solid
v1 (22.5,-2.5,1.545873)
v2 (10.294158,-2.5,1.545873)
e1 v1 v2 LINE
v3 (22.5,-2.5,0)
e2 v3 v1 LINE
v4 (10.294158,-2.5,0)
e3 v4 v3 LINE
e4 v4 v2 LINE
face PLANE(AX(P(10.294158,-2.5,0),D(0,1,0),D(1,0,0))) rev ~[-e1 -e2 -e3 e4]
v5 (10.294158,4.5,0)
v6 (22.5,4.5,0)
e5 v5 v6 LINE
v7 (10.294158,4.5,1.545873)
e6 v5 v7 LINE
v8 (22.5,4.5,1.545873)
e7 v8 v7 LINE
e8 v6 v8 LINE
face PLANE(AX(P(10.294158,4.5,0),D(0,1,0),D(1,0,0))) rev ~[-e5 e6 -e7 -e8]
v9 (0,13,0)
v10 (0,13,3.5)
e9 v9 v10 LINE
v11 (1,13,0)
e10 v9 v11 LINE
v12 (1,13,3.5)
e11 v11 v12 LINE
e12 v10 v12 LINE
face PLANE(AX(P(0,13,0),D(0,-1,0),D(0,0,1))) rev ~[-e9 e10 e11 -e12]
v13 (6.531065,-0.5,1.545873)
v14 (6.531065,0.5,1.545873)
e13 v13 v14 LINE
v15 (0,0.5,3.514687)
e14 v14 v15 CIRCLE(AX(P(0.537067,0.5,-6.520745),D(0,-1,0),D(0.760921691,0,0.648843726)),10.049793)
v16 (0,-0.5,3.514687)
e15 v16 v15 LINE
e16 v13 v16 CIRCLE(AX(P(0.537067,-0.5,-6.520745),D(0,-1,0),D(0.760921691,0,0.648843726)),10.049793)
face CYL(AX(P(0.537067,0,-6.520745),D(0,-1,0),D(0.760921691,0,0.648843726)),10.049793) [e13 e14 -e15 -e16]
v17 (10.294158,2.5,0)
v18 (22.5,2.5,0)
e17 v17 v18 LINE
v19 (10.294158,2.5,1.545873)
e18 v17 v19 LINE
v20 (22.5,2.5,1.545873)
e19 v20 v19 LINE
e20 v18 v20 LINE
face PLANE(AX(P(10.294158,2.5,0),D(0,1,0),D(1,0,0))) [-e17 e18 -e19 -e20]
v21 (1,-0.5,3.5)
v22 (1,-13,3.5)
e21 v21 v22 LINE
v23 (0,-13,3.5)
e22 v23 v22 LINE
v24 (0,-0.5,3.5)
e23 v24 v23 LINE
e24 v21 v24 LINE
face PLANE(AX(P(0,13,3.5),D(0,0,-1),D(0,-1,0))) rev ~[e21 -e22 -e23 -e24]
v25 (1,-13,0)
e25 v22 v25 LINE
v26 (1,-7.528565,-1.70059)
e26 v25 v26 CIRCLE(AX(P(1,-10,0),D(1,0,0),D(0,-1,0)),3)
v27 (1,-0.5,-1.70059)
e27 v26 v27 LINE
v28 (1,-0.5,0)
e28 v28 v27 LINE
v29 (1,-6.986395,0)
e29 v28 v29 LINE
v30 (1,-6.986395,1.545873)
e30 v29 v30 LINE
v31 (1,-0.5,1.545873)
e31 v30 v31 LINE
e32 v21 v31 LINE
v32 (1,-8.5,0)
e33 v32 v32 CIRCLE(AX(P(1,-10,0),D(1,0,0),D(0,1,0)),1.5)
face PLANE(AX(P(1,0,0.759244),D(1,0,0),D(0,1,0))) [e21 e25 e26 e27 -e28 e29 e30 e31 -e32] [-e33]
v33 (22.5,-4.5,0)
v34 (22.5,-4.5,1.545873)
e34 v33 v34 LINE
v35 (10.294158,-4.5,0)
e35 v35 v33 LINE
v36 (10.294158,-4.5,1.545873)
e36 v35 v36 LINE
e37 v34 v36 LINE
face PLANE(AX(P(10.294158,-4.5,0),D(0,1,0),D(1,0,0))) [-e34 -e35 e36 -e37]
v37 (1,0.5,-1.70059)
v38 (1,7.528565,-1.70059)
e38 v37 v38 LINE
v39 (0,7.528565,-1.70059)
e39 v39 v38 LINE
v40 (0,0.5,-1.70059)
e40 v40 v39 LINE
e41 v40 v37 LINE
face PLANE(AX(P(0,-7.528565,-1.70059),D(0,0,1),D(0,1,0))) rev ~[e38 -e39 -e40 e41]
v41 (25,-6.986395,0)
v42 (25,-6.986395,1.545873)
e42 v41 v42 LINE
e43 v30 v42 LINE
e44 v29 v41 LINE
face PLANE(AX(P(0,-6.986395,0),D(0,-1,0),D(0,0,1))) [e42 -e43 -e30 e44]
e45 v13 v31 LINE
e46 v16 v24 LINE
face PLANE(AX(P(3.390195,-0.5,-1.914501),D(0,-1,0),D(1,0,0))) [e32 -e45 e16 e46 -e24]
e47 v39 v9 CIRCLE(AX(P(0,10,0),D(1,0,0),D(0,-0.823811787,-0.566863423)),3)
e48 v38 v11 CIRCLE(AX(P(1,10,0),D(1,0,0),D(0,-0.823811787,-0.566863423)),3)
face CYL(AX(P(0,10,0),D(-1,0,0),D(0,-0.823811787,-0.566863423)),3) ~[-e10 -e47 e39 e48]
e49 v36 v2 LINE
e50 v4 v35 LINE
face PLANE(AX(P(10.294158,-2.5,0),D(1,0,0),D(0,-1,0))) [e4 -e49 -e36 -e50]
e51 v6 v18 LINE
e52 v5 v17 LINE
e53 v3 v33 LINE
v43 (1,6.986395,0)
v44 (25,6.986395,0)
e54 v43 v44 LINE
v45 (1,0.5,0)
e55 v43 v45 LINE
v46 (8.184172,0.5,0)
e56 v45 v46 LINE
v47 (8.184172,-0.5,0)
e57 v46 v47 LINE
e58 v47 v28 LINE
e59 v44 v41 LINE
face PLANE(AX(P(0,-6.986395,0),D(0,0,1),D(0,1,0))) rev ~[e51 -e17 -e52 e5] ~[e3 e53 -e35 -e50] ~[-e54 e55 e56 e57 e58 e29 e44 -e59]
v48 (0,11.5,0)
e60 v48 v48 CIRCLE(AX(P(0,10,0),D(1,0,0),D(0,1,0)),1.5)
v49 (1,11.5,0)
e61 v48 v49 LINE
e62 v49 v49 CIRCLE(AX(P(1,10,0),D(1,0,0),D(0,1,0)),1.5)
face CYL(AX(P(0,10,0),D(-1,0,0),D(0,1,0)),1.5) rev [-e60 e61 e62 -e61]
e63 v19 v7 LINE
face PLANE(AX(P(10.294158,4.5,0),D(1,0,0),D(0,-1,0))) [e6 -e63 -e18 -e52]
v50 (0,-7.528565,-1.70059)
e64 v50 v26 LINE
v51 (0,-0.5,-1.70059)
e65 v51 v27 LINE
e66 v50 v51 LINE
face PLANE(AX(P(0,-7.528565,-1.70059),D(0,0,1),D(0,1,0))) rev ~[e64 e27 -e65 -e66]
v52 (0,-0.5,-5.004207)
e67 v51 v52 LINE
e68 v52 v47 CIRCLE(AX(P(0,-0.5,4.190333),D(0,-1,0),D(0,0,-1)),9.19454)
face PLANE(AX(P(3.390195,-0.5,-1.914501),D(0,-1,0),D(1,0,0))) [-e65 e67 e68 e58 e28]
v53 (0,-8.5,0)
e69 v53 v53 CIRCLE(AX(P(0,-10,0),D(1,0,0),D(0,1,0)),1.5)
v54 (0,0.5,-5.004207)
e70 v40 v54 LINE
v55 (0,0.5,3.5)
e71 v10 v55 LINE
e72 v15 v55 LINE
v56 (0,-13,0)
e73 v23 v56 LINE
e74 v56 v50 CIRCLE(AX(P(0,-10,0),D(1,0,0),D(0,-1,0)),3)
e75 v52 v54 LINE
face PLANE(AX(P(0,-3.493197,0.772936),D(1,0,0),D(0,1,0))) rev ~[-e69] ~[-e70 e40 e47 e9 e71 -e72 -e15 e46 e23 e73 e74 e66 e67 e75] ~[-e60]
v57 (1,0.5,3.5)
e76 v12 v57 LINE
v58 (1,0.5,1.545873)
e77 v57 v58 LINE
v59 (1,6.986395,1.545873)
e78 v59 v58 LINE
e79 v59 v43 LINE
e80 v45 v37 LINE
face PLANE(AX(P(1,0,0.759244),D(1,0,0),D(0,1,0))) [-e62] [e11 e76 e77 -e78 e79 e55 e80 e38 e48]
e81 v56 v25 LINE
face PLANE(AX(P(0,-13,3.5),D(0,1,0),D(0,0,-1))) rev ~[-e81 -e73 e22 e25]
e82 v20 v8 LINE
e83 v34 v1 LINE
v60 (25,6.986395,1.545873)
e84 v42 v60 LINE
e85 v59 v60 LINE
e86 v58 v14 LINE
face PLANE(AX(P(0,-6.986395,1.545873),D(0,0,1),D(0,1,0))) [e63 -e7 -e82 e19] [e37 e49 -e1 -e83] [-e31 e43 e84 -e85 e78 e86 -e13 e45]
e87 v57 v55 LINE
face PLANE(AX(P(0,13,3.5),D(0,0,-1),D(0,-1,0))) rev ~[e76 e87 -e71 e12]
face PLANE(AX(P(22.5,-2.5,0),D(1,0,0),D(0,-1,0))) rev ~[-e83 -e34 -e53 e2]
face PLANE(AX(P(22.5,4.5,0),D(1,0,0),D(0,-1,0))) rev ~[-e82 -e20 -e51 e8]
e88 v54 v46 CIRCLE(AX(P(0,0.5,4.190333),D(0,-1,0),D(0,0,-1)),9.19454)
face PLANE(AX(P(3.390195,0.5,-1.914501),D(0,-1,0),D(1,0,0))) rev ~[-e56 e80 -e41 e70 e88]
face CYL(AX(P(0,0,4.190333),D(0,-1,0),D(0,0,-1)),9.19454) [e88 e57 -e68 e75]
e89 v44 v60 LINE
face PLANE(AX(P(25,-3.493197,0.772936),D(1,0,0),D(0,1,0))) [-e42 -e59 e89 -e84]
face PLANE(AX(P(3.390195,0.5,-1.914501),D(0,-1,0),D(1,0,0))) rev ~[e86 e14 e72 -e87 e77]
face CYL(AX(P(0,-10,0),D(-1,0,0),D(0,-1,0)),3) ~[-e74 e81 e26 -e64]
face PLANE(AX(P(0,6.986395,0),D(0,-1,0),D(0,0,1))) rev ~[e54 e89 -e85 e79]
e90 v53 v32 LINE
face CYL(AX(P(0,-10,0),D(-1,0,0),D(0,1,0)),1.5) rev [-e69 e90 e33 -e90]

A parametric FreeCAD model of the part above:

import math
import FreeCAD as App
import Part
import Sketcher
from FreeCAD import Vector
Q = App.Units.Quantity

doc = App.newDocument("Part")
body = doc.addObject("PartDesign::Body", "Body")

sketch1 = doc.addObject("Sketcher::SketchObject", "Sketch")
body.addObject(sketch1)
sketch1.AttachmentSupport = (doc.YZ_Plane, [""])
sketch1.MapMode = "FlatFace"
sketch1.addGeometry(Part.LineSegment(Vector(-7.5, -1.7, 0), Vector(7.5, -1.7, 0)), False)
sketch1.addGeometry(Part.ArcOfCircle(Part.Circle(Vector(10, 0, 0), Vector(0, 0, 1), 3), math.radians(-145), math.radians(0)), False)
sketch1.addGeometry(Part.LineSegment(Vector(13, 0, 0), Vector(13, 3.5, 0)), False)
sketch1.addGeometry(Part.LineSegment(Vector(13, 3.5, 0), Vector(-13, 3.5, 0)), False)
sketch1.addGeometry(Part.LineSegment(Vector(-13, 3.5, 0), Vector(-13, 0, 0)), False)
sketch1.addGeometry(Part.ArcOfCircle(Part.Circle(Vector(-10, 0, 0), Vector(0, 0, 1), 3), math.radians(180), math.radians(325)), False)
sketch1.addGeometry(Part.Circle(Vector(-10, 0, 0), Vector(0, 0, 1), 1.5), False)
sketch1.addGeometry(Part.Circle(Vector(10, 0, 0), Vector(0, 0, 1), 1.5), False)
sketch1.addGeometry(Part.LineSegment(Vector(0, 0, 0), Vector(-7, 0, 0)), False)
sketch1.addGeometry(Part.LineSegment(Vector(-7, 0, 0), Vector(-7, 1.5, 0)), False)
sketch1.addGeometry(Part.LineSegment(Vector(-7, 1.5, 0), Vector(0, 1.5, 0)), False)
sketch1.addGeometry(Part.LineSegment(Vector(0, 1.5, 0), Vector(0, 0, 0)), False)
sketch1.addConstraint(Sketcher.Constraint("Coincident", 0, 2, 1, 1))
sketch1.addConstraint(Sketcher.Constraint("Tangent", 1, 2, 2, 1))
sketch1.addConstraint(Sketcher.Constraint("Coincident", 2, 2, 3, 1))
sketch1.addConstraint(Sketcher.Constraint("Coincident", 3, 2, 4, 1))
sketch1.addConstraint(Sketcher.Constraint("Tangent", 4, 2, 5, 1))
sketch1.addConstraint(Sketcher.Constraint("Coincident", 5, 2, 0, 1))
sketch1.addConstraint(Sketcher.Constraint("Coincident", 8, 2, 9, 1))
sketch1.addConstraint(Sketcher.Constraint("Coincident", 9, 2, 10, 1))
sketch1.addConstraint(Sketcher.Constraint("Coincident", 10, 2, 11, 1))
sketch1.addConstraint(Sketcher.Constraint("Coincident", 11, 2, 8, 1))
sketch1.addConstraint(Sketcher.Constraint("Horizontal", 0))
sketch1.addConstraint(Sketcher.Constraint("Vertical", 2))
sketch1.addConstraint(Sketcher.Constraint("Horizontal", 3))
sketch1.addConstraint(Sketcher.Constraint("Vertical", 4))
sketch1.addConstraint(Sketcher.Constraint("Horizontal", 8))
sketch1.addConstraint(Sketcher.Constraint("Vertical", 9))
sketch1.addConstraint(Sketcher.Constraint("Horizontal", 10))
sketch1.addConstraint(Sketcher.Constraint("Vertical", 11))
sketch1.addConstraint(Sketcher.Constraint("Coincident", 11, 2, -1, 1))
sketch1.addConstraint(Sketcher.Constraint("Coincident", 6, 3, 5, 3))
sketch1.addConstraint(Sketcher.Constraint("Coincident", 7, 3, 1, 3))
sketch1.addConstraint(Sketcher.Constraint("Equal", 1, 5))
sketch1.addConstraint(Sketcher.Constraint("Equal", 6, 7))
sketch1.addConstraint(Sketcher.Constraint("Symmetric", 1, 3, 5, 3, -1, 1))
sketch1.addConstraint(Sketcher.Constraint("PointOnObject", 1, 3, -1))
sketch1.addConstraint(Sketcher.Constraint("Diameter", 6, Q("3 mm")))
sketch1.addConstraint(Sketcher.Constraint("Radius", 1, Q("3 mm")))
sketch1.addConstraint(Sketcher.Constraint("DistanceX", 3, 2, 3, 1, Q("26 mm")))
sketch1.addConstraint(Sketcher.Constraint("DistanceY", 2, 1, 2, 2, Q("3.5 mm")))
sketch1.addConstraint(Sketcher.Constraint("DistanceX", 0, 1, 0, 2, Q("15.057129 mm")))
sketch1.addConstraint(Sketcher.Constraint("DistanceX", 8, 2, 8, 1, Q("6.986395 mm")))
sketch1.addConstraint(Sketcher.Constraint("DistanceY", 9, 1, 9, 2, Q("1.545873 mm")))
pad1 = doc.addObject("PartDesign::Pad", "Pad")
body.addObject(pad1)
pad1.Profile = sketch1
pad1.Length = 1

sketch2 = doc.addObject("Sketcher::SketchObject", "Sketch001")
body.addObject(sketch2)
sketch2.AttachmentSupport = (doc.YZ_Plane, [""])
sketch2.MapMode = "FlatFace"
sketch2.addGeometry(Part.LineSegment(Vector(0, 1.5, 0), Vector(0, 0, 0)), False)
sketch2.addGeometry(Part.LineSegment(Vector(0, 0, 0), Vector(7, 0, 0)), False)
sketch2.addGeometry(Part.LineSegment(Vector(7, 0, 0), Vector(7, 1.5, 0)), False)
sketch2.addGeometry(Part.LineSegment(Vector(7, 1.5, 0), Vector(0, 1.5, 0)), False)
sketch2.addConstraint(Sketcher.Constraint("Coincident", 0, 2, 1, 1))
sketch2.addConstraint(Sketcher.Constraint("Coincident", 1, 2, 2, 1))
sketch2.addConstraint(Sketcher.Constraint("Coincident", 2, 2, 3, 1))
sketch2.addConstraint(Sketcher.Constraint("Coincident", 3, 2, 0, 1))
sketch2.addConstraint(Sketcher.Constraint("Vertical", 0))
sketch2.addConstraint(Sketcher.Constraint("Horizontal", 1))
sketch2.addConstraint(Sketcher.Constraint("Vertical", 2))
sketch2.addConstraint(Sketcher.Constraint("Horizontal", 3))
sketch2.addConstraint(Sketcher.Constraint("Coincident", 0, 2, -1, 1))
sketch2.addConstraint(Sketcher.Constraint("DistanceX", 1, 1, 1, 2, Q("6.986395 mm")))
sketch2.addConstraint(Sketcher.Constraint("DistanceY", 0, 2, 0, 1, Q("1.545873 mm")))
pad2 = doc.addObject("PartDesign::Pad", "Pad001")
body.addObject(pad2)
pad2.Profile = sketch2
pad2.Length = 25

sketch3 = doc.addObject("Sketcher::SketchObject", "Sketch002")
body.addObject(sketch3)
sketch3.AttachmentSupport = (doc.XY_Plane, [""])
sketch3.MapMode = "FlatFace"
sketch3.addGeometry(Part.LineSegment(Vector(10.3, 2.5, 0), Vector(10.3, 4.5, 0)), False)
sketch3.addGeometry(Part.LineSegment(Vector(10.3, 4.5, 0), Vector(22.5, 4.5, 0)), False)
sketch3.addGeometry(Part.LineSegment(Vector(22.5, 4.5, 0), Vector(22.5, 2.5, 0)), False)
sketch3.addGeometry(Part.LineSegment(Vector(22.5, 2.5, 0), Vector(10.3, 2.5, 0)), False)
sketch3.addConstraint(Sketcher.Constraint("Coincident", 0, 2, 1, 1))
sketch3.addConstraint(Sketcher.Constraint("Coincident", 1, 2, 2, 1))
sketch3.addConstraint(Sketcher.Constraint("Coincident", 2, 2, 3, 1))
sketch3.addConstraint(Sketcher.Constraint("Coincident", 3, 2, 0, 1))
sketch3.addConstraint(Sketcher.Constraint("Vertical", 0))
sketch3.addConstraint(Sketcher.Constraint("Horizontal", 1))
sketch3.addConstraint(Sketcher.Constraint("Vertical", 2))
sketch3.addConstraint(Sketcher.Constraint("Horizontal", 3))
sketch3.addConstraint(Sketcher.Constraint("DistanceY", 0, 1, 0, 2, Q("2 mm")))
sketch3.addConstraint(Sketcher.Constraint("DistanceY", -1, 1, 0, 2, Q("4.5 mm")))
sketch3.addConstraint(Sketcher.Constraint("DistanceX", -1, 1, 1, 2, Q("22.5 mm")))
sketch3.addConstraint(Sketcher.Constraint("DistanceX", 1, 1, 1, 2, Q("12.205842 mm")))
pocket1 = doc.addObject("PartDesign::Pocket", "Pocket")
body.addObject(pocket1)
pocket1.Profile = sketch3
pocket1.Length = 25
pocket1.Reversed = True

sketch4 = doc.addObject("Sketcher::SketchObject", "Sketch003")
body.addObject(sketch4)
sketch4.AttachmentSupport = (doc.XZ_Plane, [""])
sketch4.MapMode = "FlatFace"
sketch4.addGeometry(Part.ArcOfCircle(Part.Circle(Vector(0, 4, 0), Vector(0, 0, 1), 9), math.radians(-90), math.radians(-27)), False)
sketch4.addGeometry(Part.ArcOfCircle(Part.Circle(Vector(1, -7, 0), Vector(0, 0, 1), 10), math.radians(40), math.radians(93)), False)
sketch4.addGeometry(Part.LineSegment(Vector(0, 4, 0), Vector(0, -5, 0)), False)
sketch4.addConstraint(Sketcher.Constraint("Coincident", 0, 2, 1, 1))
sketch4.addConstraint(Sketcher.Constraint("Coincident", 1, 2, 2, 1))
sketch4.addConstraint(Sketcher.Constraint("Coincident", 2, 2, 0, 1))
sketch4.addConstraint(Sketcher.Constraint("Vertical", 2))
sketch4.addConstraint(Sketcher.Constraint("PointOnObject", 0, 3, -2))
sketch4.addConstraint(Sketcher.Constraint("PointOnObject", 0, 2, -1))
sketch4.addConstraint(Sketcher.Constraint("PointOnObject", 1, 2, -2))
sketch4.addConstraint(Sketcher.Constraint("Radius", 0, Q("9.19454 mm")))
sketch4.addConstraint(Sketcher.Constraint("Radius", 1, Q("10.049793 mm")))
sketch4.addConstraint(Sketcher.Constraint("DistanceY", 2, 2, 2, 1, Q("8.518894 mm")))
sketch4.addConstraint(Sketcher.Constraint("DistanceY", 1, 3, 1, 2, Q("10.035432 mm")))
pad3 = doc.addObject("PartDesign::Pad", "Pad002")
body.addObject(pad3)
pad3.Profile = sketch4
pad3.Length = 1
pad3.Midplane = True

sketch5 = doc.addObject("Sketcher::SketchObject", "Sketch004")
body.addObject(sketch5)
sketch5.AttachmentSupport = (doc.YZ_Plane, [""])
sketch5.MapMode = "FlatFace"
sketch5.addGeometry(Part.LineSegment(Vector(-7, 1.5, 0), Vector(-7, 0, 0)), False)
sketch5.addGeometry(Part.LineSegment(Vector(-7, 0, 0), Vector(0, 0, 0)), False)
sketch5.addGeometry(Part.LineSegment(Vector(0, 0, 0), Vector(0, 1.5, 0)), False)
sketch5.addGeometry(Part.LineSegment(Vector(0, 1.5, 0), Vector(-7, 1.5, 0)), False)
sketch5.addConstraint(Sketcher.Constraint("Coincident", 0, 2, 1, 1))
sketch5.addConstraint(Sketcher.Constraint("Coincident", 1, 2, 2, 1))
sketch5.addConstraint(Sketcher.Constraint("Coincident", 2, 2, 3, 1))
sketch5.addConstraint(Sketcher.Constraint("Coincident", 3, 2, 0, 1))
sketch5.addConstraint(Sketcher.Constraint("Vertical", 0))
sketch5.addConstraint(Sketcher.Constraint("Horizontal", 1))
sketch5.addConstraint(Sketcher.Constraint("Vertical", 2))
sketch5.addConstraint(Sketcher.Constraint("Horizontal", 3))
sketch5.addConstraint(Sketcher.Constraint("Coincident", 1, 2, -1, 1))
sketch5.addConstraint(Sketcher.Constraint("DistanceX", 1, 1, 1, 2, Q("6.986395 mm")))
sketch5.addConstraint(Sketcher.Constraint("DistanceY", 0, 2, 0, 1, Q("1.545873 mm")))
pad4 = doc.addObject("PartDesign::Pad", "Pad003")
body.addObject(pad4)
pad4.Profile = sketch5
pad4.Length = 25

sketch6 = doc.addObject("Sketcher::SketchObject", "Sketch005")
body.addObject(sketch6)
sketch6.AttachmentSupport = (doc.XY_Plane, [""])
sketch6.MapMode = "FlatFace"
sketch6.addGeometry(Part.LineSegment(Vector(10.3, -4.5, 0), Vector(10.3, -2.5, 0)), False)
sketch6.addGeometry(Part.LineSegment(Vector(10.3, -2.5, 0), Vector(22.5, -2.5, 0)), False)
sketch6.addGeometry(Part.LineSegment(Vector(22.5, -2.5, 0), Vector(22.5, -4.5, 0)), False)
sketch6.addGeometry(Part.LineSegment(Vector(22.5, -4.5, 0), Vector(10.3, -4.5, 0)), False)
sketch6.addConstraint(Sketcher.Constraint("Coincident", 0, 2, 1, 1))
sketch6.addConstraint(Sketcher.Constraint("Coincident", 1, 2, 2, 1))
sketch6.addConstraint(Sketcher.Constraint("Coincident", 2, 2, 3, 1))
sketch6.addConstraint(Sketcher.Constraint("Coincident", 3, 2, 0, 1))
sketch6.addConstraint(Sketcher.Constraint("Vertical", 0))
sketch6.addConstraint(Sketcher.Constraint("Horizontal", 1))
sketch6.addConstraint(Sketcher.Constraint("Vertical", 2))
sketch6.addConstraint(Sketcher.Constraint("Horizontal", 3))
sketch6.addConstraint(Sketcher.Constraint("DistanceY", 0, 1, 0, 2, Q("2 mm")))
sketch6.addConstraint(Sketcher.Constraint("DistanceY", 0, 2, -1, 1, Q("2.5 mm")))
sketch6.addConstraint(Sketcher.Constraint("DistanceX", -1, 1, 1, 2, Q("22.5 mm")))
sketch6.addConstraint(Sketcher.Constraint("DistanceX", 1, 1, 1, 2, Q("12.205842 mm")))
pocket2 = doc.addObject("PartDesign::Pocket", "Pocket001")
body.addObject(pocket2)
pocket2.Profile = sketch6
pocket2.Length = 25
pocket2.Reversed = True

doc.recompute()
